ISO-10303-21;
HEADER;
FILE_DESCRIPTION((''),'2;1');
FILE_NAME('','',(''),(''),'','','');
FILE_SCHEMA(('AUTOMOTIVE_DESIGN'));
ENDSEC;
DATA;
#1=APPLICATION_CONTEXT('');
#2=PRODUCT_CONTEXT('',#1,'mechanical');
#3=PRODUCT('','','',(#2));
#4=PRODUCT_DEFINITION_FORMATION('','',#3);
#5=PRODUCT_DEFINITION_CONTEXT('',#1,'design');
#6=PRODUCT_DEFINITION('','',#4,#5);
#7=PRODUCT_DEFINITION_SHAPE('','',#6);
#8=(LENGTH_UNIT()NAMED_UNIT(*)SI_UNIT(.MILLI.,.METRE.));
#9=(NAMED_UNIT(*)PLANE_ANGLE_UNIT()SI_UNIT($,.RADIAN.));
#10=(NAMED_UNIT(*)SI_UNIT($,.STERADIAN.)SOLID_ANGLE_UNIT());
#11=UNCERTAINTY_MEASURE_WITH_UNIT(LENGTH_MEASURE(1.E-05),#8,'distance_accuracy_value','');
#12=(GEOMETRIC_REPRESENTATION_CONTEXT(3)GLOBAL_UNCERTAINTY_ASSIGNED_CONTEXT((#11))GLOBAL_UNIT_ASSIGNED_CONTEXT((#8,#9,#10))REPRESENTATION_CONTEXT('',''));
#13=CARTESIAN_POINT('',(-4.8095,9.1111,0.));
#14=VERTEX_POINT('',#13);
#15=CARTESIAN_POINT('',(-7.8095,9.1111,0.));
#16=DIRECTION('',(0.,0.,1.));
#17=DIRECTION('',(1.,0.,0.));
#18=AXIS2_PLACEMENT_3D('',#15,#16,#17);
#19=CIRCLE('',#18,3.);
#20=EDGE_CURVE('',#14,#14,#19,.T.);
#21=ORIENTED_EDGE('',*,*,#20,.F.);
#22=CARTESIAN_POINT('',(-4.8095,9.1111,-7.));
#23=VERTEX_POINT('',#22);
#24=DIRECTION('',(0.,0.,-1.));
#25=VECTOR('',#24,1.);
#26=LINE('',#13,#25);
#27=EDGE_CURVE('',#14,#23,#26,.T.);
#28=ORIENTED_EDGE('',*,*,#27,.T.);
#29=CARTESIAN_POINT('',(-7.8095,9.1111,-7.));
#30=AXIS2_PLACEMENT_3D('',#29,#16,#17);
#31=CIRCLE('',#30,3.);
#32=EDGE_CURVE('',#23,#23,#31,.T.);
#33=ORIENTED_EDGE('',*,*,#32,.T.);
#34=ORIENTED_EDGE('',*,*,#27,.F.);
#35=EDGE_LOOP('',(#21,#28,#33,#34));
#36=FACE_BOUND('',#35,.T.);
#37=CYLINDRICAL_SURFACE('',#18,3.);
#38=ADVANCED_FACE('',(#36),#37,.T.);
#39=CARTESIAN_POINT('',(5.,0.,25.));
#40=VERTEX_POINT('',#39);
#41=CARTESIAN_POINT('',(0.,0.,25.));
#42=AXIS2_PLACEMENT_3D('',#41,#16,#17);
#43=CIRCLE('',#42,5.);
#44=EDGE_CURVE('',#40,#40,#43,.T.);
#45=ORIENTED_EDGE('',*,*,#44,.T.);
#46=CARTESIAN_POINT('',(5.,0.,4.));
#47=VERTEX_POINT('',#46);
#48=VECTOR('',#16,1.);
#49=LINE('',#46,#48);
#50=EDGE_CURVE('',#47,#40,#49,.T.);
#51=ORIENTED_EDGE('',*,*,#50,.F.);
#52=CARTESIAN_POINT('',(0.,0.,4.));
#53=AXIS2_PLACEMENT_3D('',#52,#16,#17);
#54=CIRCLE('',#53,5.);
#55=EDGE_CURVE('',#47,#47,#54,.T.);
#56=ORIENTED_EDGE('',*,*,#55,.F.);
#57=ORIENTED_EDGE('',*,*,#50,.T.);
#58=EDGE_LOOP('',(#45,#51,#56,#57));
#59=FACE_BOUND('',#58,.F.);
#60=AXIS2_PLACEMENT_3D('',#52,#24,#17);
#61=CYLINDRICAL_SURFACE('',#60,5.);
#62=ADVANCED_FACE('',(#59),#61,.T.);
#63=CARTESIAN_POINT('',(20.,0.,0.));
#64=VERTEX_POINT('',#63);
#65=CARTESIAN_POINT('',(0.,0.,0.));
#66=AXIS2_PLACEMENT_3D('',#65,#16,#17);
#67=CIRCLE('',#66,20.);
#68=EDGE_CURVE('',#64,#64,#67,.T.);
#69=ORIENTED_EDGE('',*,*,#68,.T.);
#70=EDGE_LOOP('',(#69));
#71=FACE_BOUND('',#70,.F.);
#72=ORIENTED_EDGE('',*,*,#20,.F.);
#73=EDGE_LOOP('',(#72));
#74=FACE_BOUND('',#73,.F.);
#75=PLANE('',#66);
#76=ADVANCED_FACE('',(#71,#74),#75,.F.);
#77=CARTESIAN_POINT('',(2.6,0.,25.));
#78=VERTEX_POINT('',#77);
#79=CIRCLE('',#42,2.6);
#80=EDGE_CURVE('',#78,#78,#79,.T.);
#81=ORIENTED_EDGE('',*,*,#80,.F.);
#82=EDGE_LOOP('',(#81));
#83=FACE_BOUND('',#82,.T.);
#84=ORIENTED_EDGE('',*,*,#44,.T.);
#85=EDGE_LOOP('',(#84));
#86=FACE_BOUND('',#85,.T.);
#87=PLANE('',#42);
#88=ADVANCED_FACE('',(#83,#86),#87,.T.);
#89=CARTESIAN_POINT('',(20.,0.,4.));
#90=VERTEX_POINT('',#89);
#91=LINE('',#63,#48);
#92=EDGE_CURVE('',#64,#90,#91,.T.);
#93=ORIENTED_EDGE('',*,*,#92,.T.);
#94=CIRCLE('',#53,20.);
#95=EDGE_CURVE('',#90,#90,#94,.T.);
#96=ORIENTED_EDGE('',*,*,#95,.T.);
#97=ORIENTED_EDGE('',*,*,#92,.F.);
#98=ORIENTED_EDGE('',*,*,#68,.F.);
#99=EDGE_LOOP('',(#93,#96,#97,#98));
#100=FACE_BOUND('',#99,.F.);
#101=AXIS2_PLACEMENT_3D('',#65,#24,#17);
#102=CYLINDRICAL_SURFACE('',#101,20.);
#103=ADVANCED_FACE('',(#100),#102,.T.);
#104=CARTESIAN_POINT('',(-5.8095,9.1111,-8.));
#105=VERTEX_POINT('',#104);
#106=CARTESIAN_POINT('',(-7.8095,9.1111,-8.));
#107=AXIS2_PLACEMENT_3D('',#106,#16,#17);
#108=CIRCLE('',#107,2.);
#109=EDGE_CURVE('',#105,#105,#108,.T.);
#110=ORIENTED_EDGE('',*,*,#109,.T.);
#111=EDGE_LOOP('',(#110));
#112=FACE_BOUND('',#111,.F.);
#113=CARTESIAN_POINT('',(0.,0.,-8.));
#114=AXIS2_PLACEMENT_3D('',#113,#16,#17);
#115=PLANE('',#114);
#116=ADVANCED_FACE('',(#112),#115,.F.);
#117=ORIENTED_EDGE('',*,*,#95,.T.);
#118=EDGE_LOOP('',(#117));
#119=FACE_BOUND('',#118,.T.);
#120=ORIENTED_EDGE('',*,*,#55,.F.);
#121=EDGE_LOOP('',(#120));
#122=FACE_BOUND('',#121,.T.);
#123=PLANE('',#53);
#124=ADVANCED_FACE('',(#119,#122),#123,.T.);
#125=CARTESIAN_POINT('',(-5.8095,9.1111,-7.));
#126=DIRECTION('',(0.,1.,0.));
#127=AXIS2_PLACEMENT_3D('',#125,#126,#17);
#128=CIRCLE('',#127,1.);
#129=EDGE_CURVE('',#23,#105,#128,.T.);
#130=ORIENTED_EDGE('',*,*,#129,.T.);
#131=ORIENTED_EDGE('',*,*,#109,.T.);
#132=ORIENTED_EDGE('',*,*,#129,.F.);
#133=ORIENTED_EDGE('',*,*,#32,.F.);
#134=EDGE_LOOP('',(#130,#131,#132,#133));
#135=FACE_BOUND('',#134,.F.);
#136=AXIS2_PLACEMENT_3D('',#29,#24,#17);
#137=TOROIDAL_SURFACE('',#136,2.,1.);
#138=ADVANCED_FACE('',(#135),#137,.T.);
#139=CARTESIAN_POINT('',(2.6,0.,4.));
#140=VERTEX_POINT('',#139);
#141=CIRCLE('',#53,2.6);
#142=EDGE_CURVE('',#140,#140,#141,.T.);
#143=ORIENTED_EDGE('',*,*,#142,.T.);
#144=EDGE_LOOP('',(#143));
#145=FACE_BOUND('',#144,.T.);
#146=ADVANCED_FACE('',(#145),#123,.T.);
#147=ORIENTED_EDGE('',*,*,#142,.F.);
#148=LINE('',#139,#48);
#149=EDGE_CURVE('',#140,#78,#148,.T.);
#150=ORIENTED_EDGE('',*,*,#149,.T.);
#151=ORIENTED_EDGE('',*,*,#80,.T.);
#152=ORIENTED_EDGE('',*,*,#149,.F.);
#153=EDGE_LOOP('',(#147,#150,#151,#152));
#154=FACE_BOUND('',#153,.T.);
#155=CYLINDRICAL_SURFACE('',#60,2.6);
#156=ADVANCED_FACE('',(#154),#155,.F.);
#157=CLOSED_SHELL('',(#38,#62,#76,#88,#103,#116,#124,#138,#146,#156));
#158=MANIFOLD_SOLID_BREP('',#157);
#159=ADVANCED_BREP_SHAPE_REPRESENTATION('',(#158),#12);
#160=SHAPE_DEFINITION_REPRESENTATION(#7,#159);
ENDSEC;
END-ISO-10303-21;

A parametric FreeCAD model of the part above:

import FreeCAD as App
import Part
import Sketcher
from FreeCAD import Vector
Q = App.Units.Quantity


def edges_at(feature, points):
    """Names of the edges that pass closest to the given points."""
    edges = feature.Shape.Edges
    near = lambda p: min(range(len(edges)), key=lambda i: edges[i].distToShape(Part.Vertex(*p))[0])
    return sorted({f"Edge{near(p) + 1}" for p in points})

doc = App.newDocument("Part")
body = doc.addObject("PartDesign::Body", "Body")

sketch1 = body.newObject("Sketcher::SketchObject", "Sketch")
sketch1.AttachmentSupport = (doc.getObject("XY_Plane"), [""])
sketch1.MapMode = "FlatFace"
sketch1.addGeometry(Part.Circle(Vector(0, 0, 0), Vector(0, 0, 1), 20), False)
sketch1.addConstraint([
    Sketcher.Constraint("Coincident", 0, 3, -1, 1),
    Sketcher.Constraint("Diameter", 0, Q("40 mm")),
])
pad1 = body.newObject("PartDesign::Pad", "Pad")
pad1.Profile = sketch1
pad1.Length = 4

sketch2 = body.newObject("Sketcher::SketchObject", "Sketch001")
sketch2.AttachmentSupport = (doc.getObject("XY_Plane"), [""])
sketch2.MapMode = "FlatFace"
sketch2.AttachmentOffset = App.Placement(Vector(0, 0, 4), App.Rotation())
sketch2.addGeometry([
    Part.Circle(Vector(0, 0, 0), Vector(0, 0, 1), 5),
    Part.Circle(Vector(0, 0, 0), Vector(0, 0, 1), 2.6),
], False)
sketch2.addConstraint([
    Sketcher.Constraint("Coincident", 0, 3, -1, 1),
    Sketcher.Constraint("Coincident", 1, 3, -1, 1),
    Sketcher.Constraint("Diameter", 0, Q("10 mm")),
    Sketcher.Constraint("Diameter", 1, Q("5.2 mm")),
])
pad2 = body.newObject("PartDesign::Pad", "Pad001")
pad2.Profile = sketch2
pad2.Length = 21

sketch3 = body.newObject("Sketcher::SketchObject", "Sketch002")
sketch3.AttachmentSupport = (doc.getObject("XY_Plane"), [""])
sketch3.MapMode = "FlatFace"
sketch3.addGeometry(Part.Circle(Vector(-7.8, 9.1, 0), Vector(0, 0, 1), 3), False)
sketch3.addConstraint([
    Sketcher.Constraint("Diameter", 0, Q("6 mm")),
    Sketcher.Constraint("DistanceY", -1, 1, 0, 3, Q("9.111 mm")),
    Sketcher.Constraint("DistanceX", 0, 3, -1, 1, Q("7.8095 mm")),
])
pad3 = body.newObject("PartDesign::Pad", "Pad002")
pad3.Profile = sketch3
pad3.Length = 8
pad3.Reversed = True
doc.recompute()

fillet = body.newObject("PartDesign::Fillet", "Fillet")
fillet.Base = (pad3, edges_at(pad3, [(-10.607, 10.196, -8)]))
fillet.Radius = 1

doc.recompute()
